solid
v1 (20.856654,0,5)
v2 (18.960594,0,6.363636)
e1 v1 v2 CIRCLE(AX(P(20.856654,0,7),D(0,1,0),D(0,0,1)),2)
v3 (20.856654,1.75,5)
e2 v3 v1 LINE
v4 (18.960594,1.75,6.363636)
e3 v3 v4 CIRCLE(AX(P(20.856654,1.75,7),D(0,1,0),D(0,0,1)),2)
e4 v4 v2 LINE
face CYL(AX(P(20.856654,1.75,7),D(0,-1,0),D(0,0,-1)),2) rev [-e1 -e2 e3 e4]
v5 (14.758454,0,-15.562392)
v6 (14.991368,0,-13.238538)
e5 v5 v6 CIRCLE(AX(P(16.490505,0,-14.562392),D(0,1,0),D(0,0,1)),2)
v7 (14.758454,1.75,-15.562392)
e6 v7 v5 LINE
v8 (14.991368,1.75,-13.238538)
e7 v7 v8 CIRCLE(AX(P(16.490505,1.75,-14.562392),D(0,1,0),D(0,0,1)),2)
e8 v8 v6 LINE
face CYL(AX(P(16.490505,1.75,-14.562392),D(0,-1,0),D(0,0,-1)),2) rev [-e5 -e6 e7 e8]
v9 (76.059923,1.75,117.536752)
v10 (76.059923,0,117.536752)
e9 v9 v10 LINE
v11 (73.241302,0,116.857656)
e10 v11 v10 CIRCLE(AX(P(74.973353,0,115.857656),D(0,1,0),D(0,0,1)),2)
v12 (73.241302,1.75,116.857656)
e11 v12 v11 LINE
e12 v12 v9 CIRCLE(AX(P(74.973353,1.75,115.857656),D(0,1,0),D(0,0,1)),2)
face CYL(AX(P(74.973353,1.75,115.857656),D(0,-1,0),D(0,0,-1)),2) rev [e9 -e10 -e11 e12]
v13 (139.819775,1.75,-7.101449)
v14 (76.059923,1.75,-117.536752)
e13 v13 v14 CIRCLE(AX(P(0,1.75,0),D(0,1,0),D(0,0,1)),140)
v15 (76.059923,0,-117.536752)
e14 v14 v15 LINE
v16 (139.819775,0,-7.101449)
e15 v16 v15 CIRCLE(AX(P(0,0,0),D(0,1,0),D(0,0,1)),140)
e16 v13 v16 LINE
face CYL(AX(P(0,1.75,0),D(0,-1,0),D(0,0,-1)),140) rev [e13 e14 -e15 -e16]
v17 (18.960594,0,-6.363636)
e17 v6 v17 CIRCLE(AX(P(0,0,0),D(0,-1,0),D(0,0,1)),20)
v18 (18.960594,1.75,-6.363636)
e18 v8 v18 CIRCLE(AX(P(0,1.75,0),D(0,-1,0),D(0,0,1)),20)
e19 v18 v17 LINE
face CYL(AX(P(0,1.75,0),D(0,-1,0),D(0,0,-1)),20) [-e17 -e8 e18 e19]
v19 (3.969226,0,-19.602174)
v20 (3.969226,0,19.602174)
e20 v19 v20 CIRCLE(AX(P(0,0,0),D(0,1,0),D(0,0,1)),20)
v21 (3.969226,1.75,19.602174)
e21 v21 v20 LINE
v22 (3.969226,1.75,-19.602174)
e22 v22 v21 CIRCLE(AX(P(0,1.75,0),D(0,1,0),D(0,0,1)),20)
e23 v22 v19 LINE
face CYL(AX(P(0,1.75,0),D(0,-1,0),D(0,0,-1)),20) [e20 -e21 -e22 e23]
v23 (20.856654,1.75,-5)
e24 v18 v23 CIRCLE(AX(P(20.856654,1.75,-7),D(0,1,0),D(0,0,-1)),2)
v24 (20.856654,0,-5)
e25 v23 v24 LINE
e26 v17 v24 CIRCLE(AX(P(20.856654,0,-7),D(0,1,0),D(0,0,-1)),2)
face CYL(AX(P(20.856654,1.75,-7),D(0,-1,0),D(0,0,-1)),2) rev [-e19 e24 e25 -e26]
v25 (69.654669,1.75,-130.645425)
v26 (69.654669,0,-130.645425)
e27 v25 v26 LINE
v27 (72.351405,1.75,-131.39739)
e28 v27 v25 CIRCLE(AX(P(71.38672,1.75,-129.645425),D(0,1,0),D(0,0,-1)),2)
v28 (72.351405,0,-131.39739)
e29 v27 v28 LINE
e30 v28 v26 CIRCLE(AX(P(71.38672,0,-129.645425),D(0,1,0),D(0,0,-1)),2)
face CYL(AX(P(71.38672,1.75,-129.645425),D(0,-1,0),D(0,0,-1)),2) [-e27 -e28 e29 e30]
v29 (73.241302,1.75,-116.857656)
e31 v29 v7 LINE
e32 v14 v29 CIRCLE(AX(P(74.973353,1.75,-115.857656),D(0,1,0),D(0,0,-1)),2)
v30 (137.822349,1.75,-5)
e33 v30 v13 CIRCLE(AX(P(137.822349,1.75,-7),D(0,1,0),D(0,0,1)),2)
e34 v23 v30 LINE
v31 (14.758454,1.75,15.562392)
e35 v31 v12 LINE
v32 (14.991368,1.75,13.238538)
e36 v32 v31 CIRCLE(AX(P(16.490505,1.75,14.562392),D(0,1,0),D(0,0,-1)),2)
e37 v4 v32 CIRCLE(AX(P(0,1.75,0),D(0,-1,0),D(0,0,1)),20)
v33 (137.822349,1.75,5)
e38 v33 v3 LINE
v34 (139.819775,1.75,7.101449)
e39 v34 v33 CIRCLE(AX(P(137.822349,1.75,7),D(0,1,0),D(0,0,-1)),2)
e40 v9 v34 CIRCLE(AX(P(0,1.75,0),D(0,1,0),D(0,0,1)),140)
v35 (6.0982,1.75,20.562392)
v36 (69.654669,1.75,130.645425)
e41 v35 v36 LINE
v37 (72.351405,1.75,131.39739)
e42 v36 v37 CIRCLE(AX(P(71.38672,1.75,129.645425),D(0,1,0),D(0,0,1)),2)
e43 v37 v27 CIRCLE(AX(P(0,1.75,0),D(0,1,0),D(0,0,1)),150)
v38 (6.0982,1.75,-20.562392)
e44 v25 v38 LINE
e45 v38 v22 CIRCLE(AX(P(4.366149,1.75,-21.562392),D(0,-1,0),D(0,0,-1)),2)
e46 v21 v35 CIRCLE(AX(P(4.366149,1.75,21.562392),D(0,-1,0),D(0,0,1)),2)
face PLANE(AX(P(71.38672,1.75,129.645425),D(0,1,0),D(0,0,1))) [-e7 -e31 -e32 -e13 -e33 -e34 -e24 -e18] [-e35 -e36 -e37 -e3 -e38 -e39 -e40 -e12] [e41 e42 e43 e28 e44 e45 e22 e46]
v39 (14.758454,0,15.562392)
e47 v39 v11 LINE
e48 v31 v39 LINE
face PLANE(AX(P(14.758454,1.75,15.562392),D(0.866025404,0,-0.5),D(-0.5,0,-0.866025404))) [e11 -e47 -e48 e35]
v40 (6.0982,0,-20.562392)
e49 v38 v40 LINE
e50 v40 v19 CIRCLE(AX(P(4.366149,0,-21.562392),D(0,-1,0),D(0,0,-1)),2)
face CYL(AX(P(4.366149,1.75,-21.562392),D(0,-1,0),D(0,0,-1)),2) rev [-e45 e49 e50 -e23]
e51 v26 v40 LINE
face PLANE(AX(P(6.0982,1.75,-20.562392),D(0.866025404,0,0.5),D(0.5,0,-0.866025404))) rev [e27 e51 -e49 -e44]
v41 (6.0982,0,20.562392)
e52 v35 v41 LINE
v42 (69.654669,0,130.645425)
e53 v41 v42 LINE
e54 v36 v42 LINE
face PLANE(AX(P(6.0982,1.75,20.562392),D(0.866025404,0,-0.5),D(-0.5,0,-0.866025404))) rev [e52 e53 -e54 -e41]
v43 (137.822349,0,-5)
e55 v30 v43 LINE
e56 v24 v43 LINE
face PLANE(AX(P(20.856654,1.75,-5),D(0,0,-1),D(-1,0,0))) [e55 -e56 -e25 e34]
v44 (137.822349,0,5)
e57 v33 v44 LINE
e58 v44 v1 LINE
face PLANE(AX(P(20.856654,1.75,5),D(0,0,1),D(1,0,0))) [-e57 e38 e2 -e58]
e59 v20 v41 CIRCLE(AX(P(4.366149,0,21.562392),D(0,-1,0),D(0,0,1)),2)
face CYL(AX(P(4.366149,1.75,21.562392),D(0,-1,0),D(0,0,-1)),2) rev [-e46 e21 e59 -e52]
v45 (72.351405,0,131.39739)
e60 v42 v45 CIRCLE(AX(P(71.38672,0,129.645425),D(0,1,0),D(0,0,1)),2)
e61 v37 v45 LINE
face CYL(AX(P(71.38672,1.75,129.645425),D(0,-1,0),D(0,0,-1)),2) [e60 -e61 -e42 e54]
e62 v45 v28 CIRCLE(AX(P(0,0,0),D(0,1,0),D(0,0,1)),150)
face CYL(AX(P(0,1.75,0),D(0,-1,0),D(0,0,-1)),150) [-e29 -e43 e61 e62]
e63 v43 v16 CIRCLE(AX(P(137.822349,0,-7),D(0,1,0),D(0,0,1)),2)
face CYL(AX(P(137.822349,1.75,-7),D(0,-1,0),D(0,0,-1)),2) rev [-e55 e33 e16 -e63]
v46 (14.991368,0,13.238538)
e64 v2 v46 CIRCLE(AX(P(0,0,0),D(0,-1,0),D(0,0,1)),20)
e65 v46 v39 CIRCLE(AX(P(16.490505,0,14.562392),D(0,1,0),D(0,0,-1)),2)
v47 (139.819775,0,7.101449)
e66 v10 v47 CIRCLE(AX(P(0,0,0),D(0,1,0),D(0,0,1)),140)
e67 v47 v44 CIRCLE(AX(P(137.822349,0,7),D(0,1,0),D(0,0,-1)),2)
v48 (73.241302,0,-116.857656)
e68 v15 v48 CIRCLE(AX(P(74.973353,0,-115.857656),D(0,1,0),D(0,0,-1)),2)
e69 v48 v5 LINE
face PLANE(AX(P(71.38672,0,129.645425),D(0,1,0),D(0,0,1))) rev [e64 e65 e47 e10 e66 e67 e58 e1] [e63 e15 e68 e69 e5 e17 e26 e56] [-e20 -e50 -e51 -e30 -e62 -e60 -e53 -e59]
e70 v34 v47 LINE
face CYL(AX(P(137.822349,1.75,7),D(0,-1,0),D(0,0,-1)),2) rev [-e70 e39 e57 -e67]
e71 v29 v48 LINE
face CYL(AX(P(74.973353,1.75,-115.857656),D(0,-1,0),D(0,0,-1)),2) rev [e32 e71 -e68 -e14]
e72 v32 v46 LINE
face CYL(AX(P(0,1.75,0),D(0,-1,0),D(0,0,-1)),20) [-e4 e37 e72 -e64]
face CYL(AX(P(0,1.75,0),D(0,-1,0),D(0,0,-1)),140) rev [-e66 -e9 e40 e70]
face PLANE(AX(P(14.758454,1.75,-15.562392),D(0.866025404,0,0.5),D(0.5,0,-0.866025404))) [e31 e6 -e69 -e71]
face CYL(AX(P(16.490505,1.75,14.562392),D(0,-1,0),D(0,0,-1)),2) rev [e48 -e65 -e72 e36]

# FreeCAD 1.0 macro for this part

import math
import FreeCAD as App
import Part
import Sketcher
Q = App.Units.Quantity

doc = App.newDocument("Part")
body = doc.addObject("PartDesign::Body", "Body")

# Sketch on XZ plane
sketch1 = body.newObject("Sketcher::SketchObject", "Sketch")
sketch1.AttachmentSupport = (doc.getObject("XZ_Plane"), [""])
sketch1.MapMode = "FlatFace"
sketch1.addGeometry([
    Part.LineSegment(App.Vector(69.7, -130.6, 0), App.Vector(6.1, -20.6, 0)),  # 0
    Part.ArcOfCircle(Part.Circle(App.Vector(4.4, -21.6, 0), App.Vector(0, 0, 1), 2), math.radians(30), math.radians(101)),  # 1
    Part.ArcOfCircle(Part.Circle(App.Vector(0, 0, 0), App.Vector(0, 0, 1), 20), math.radians(79), math.radians(281)),  # 2
    Part.ArcOfCircle(Part.Circle(App.Vector(4.4, 21.6, 0), App.Vector(0, 0, 1), 2), math.radians(-101), math.radians(-30)),  # 3
    Part.LineSegment(App.Vector(6.1, 20.6, 0), App.Vector(69.7, 130.6, 0)),  # 4
    Part.ArcOfCircle(Part.Circle(App.Vector(71.4, 129.6, 0), App.Vector(0, 0, 1), 2), math.radians(61), math.radians(150)),  # 5
    Part.ArcOfCircle(Part.Circle(App.Vector(0, 0, 0), App.Vector(0, 0, 1), 150), math.radians(-61), math.radians(61)),  # 6
    Part.ArcOfCircle(Part.Circle(App.Vector(71.4, -129.6, 0), App.Vector(0, 0, 1), 2), math.radians(-150), math.radians(-61)),  # 7
    Part.LineSegment(App.Vector(20.9, 5, 0), App.Vector(137.8, 5, 0)),  # 8
    Part.ArcOfCircle(Part.Circle(App.Vector(137.8, 7, 0), App.Vector(0, 0, 1), 2), math.radians(-90), math.radians(3)),  # 9
    Part.ArcOfCircle(Part.Circle(App.Vector(0, 0, 0), App.Vector(0, 0, 1), 140), math.radians(3), math.radians(57)),  # 10
    Part.ArcOfCircle(Part.Circle(App.Vector(75, 115.9, 0), App.Vector(0, 0, 1), 2), math.radians(57), math.radians(150)),  # 11
    Part.LineSegment(App.Vector(73.2, 116.9, 0), App.Vector(14.8, 15.6, 0)),  # 12
    Part.ArcOfCircle(Part.Circle(App.Vector(16.5, 14.6, 0), App.Vector(0, 0, 1), 2), math.radians(150), math.radians(221)),  # 13
    Part.ArcOfCircle(Part.Circle(App.Vector(0, 0, 0), App.Vector(0, 0, 1), 20), math.radians(19), math.radians(41)),  # 14
    Part.ArcOfCircle(Part.Circle(App.Vector(20.9, 7, 0), App.Vector(0, 0, 1), 2), math.radians(-161), math.radians(-90)),  # 15
    Part.ArcOfCircle(Part.Circle(App.Vector(20.9, -7, 0), App.Vector(0, 0, 1), 2), math.radians(90), math.radians(161)),  # 16
    Part.ArcOfCircle(Part.Circle(App.Vector(0, 0, 0), App.Vector(0, 0, 1), 20), math.radians(-41), math.radians(-19)),  # 17
    Part.ArcOfCircle(Part.Circle(App.Vector(16.5, -14.6, 0), App.Vector(0, 0, 1), 2), math.radians(139), math.radians(210)),  # 18
    Part.LineSegment(App.Vector(14.8, -15.6, 0), App.Vector(73.2, -116.9, 0)),  # 19
    Part.ArcOfCircle(Part.Circle(App.Vector(75, -115.9, 0), App.Vector(0, 0, 1), 2), math.radians(-150), math.radians(-57)),  # 20
    Part.ArcOfCircle(Part.Circle(App.Vector(0, 0, 0), App.Vector(0, 0, 1), 140), math.radians(-57), math.radians(-3)),  # 21
    Part.ArcOfCircle(Part.Circle(App.Vector(137.8, -7, 0), App.Vector(0, 0, 1), 2), math.radians(-3), math.radians(90)),  # 22
    Part.LineSegment(App.Vector(137.8, -5, 0), App.Vector(20.9, -5, 0)),  # 23
], False)
sketch1.addConstraint([
    Sketcher.Constraint("Tangent", 0, 2, 1, 1),
    Sketcher.Constraint("Tangent", 1, 2, 2, 2),
    Sketcher.Constraint("Tangent", 2, 1, 3, 1),
    Sketcher.Constraint("Tangent", 3, 2, 4, 1),
    Sketcher.Constraint("Tangent", 4, 2, 5, 2),
    Sketcher.Constraint("Tangent", 5, 1, 6, 2),
    Sketcher.Constraint("Tangent", 6, 1, 7, 2),
    Sketcher.Constraint("Tangent", 7, 1, 0, 1),
    Sketcher.Constraint("Tangent", 8, 2, 9, 1),
    Sketcher.Constraint("Tangent", 9, 2, 10, 1),
    Sketcher.Constraint("Tangent", 10, 2, 11, 1),
    Sketcher.Constraint("Tangent", 11, 2, 12, 1),
    Sketcher.Constraint("Tangent", 12, 2, 13, 1),
    Sketcher.Constraint("Tangent", 13, 2, 14, 2),
    Sketcher.Constraint("Tangent", 14, 1, 15, 1),
    Sketcher.Constraint("Tangent", 15, 2, 8, 1),
    Sketcher.Constraint("Tangent", 16, 2, 17, 2),
    Sketcher.Constraint("Tangent", 17, 1, 18, 1),
    Sketcher.Constraint("Tangent", 18, 2, 19, 1),
    Sketcher.Constraint("Tangent", 19, 2, 20, 1),
    Sketcher.Constraint("Tangent", 20, 2, 21, 1),
    Sketcher.Constraint("Tangent", 21, 2, 22, 1),
    Sketcher.Constraint("Tangent", 22, 2, 23, 1),
    Sketcher.Constraint("Tangent", 23, 2, 16, 1),
    Sketcher.Constraint("Horizontal", 8),
    Sketcher.Constraint("Horizontal", 23),
    Sketcher.Constraint("Coincident", 2, 3, -1, 1),
    Sketcher.Constraint("Coincident", 6, 3, -1, 1),
    Sketcher.Constraint("Coincident", 10, 3, -1, 1),
    Sketcher.Constraint("Coincident", 14, 3, -1, 1),
    Sketcher.Constraint("Coincident", 17, 3, -1, 1),
    Sketcher.Constraint("Coincident", 21, 3, -1, 1),
    Sketcher.Constraint("Equal", 1, 3),
    Sketcher.Constraint("Equal", 3, 5),
    Sketcher.Constraint("Equal", 5, 7),
    Sketcher.Constraint("Equal", 7, 9),
    Sketcher.Constraint("Equal", 9, 11),
    Sketcher.Constraint("Equal", 11, 13),
    Sketcher.Constraint("Equal", 2, 14),
    Sketcher.Constraint("Equal", 13, 15),
    Sketcher.Constraint("Equal", 15, 16),
    Sketcher.Constraint("Equal", 14, 17),
    Sketcher.Constraint("Equal", 16, 18),
    Sketcher.Constraint("Equal", 18, 20),
    Sketcher.Constraint("Equal", 10, 21),
    Sketcher.Constraint("Equal", 20, 22),
    Sketcher.Constraint("Symmetric", 0, 2, 3, 2, -1),
    Sketcher.Constraint("Symmetric", 12, 2, 18, 2, -1),
    Sketcher.Constraint("Parallel", 4, 12),
    Sketcher.Constraint("Vertical", 15, 3, 16, 3),
    Sketcher.Constraint("Radius", 1, Q("2 mm")),
    Sketcher.Constraint("Radius", 2, Q("20 mm")),
    Sketcher.Constraint("Radius", 6, Q("150 mm")),
    Sketcher.Constraint("Radius", 10, Q("140 mm")),
    Sketcher.Constraint("Angle", 0, Q("120 deg")),
    Sketcher.Constraint("DistanceY", -1, 1, 9, 3, Q("7 mm")),
    Sketcher.Constraint("DistanceY", 13, 3, 3, 3, Q("7 mm")),
    Sketcher.Constraint("DistanceY", 3, 2, 5, 1, Q("110.834999 mm")),
])
pad1 = body.newObject("PartDesign::Pad", "Pad")
pad1.Profile = sketch1
pad1.Length = 1.75
pad1.Reversed = True

doc.recompute()
